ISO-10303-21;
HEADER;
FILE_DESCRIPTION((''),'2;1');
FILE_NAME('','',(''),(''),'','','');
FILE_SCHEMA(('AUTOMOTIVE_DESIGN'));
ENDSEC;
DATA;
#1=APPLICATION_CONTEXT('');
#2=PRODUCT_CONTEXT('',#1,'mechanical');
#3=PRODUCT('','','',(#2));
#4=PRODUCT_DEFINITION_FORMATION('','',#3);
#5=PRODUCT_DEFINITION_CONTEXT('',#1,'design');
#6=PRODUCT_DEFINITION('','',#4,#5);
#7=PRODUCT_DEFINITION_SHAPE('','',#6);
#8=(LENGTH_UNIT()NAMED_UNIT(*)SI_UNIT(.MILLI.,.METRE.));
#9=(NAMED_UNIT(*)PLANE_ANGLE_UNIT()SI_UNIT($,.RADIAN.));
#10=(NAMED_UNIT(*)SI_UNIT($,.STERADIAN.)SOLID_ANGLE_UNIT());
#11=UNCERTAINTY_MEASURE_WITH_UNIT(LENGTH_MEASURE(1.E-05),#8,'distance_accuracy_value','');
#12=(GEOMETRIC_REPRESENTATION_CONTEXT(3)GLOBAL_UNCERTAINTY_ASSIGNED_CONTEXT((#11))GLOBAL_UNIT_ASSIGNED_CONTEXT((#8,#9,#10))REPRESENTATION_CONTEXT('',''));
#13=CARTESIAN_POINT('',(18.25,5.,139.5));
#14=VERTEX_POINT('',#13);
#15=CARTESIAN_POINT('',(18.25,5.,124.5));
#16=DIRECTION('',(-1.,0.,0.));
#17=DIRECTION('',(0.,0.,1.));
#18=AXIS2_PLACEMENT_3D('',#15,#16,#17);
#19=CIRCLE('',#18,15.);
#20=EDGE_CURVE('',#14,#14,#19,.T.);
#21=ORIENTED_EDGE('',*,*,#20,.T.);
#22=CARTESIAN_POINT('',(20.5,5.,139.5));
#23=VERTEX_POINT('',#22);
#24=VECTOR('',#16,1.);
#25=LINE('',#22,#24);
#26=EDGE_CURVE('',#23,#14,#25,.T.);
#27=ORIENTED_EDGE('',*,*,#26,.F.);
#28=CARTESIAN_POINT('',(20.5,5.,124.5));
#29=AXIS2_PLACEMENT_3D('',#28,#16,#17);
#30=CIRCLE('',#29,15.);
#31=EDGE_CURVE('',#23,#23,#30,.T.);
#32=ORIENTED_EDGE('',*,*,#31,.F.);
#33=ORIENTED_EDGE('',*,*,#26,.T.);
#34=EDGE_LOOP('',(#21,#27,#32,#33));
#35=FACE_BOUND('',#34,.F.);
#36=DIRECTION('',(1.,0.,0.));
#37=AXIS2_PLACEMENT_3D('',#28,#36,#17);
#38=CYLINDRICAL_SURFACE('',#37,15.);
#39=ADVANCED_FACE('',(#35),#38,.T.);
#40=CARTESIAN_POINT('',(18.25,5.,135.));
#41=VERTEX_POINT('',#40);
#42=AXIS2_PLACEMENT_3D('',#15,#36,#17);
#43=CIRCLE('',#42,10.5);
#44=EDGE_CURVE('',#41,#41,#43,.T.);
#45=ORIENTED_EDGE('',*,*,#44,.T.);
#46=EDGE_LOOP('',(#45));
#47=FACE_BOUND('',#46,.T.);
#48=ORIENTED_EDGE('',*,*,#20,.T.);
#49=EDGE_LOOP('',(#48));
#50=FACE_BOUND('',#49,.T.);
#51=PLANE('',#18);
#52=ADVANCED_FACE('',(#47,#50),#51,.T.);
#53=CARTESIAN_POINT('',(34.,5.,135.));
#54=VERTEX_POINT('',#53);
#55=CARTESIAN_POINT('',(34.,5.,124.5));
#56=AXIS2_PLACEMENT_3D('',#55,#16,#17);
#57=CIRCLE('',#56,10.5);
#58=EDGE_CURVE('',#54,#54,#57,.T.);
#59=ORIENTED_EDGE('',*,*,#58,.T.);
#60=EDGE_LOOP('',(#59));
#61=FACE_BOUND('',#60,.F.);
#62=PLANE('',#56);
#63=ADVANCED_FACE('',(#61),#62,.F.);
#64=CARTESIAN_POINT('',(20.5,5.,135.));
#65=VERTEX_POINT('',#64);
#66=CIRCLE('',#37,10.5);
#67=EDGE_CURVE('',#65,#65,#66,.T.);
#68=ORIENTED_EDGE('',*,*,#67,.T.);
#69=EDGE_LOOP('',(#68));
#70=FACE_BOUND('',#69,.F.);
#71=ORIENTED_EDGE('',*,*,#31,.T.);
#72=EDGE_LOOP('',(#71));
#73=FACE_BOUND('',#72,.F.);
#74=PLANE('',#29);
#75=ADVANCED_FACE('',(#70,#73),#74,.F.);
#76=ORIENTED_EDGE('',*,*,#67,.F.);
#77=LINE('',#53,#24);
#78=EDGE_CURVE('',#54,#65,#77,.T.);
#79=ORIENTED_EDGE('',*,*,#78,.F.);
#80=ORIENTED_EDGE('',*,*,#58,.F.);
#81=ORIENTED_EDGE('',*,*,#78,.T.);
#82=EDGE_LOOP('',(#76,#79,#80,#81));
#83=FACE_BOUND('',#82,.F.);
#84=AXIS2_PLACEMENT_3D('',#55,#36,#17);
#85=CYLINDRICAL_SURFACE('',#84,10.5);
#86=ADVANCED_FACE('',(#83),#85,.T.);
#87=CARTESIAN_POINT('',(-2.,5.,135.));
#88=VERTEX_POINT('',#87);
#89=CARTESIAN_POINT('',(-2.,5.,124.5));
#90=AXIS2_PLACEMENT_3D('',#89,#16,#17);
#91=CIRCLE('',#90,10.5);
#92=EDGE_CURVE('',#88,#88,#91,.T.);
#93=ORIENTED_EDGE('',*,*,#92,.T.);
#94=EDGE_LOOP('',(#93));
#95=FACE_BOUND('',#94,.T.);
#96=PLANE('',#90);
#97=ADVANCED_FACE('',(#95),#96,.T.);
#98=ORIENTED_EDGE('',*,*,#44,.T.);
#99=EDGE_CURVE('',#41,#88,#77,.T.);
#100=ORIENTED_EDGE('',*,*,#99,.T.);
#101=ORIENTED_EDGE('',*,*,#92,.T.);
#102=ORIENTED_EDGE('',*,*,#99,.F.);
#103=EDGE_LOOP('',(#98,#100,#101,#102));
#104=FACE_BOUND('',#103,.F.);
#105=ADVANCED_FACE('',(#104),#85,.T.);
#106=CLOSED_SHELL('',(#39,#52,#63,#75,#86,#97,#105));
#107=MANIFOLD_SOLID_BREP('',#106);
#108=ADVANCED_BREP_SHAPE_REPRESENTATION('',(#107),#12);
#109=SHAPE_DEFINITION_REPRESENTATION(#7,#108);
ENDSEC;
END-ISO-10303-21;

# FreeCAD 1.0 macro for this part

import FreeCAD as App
import Part
import Sketcher

doc = App.newDocument("Part")
body = doc.addObject("PartDesign::Body", "Body")

sketch1 = doc.addObject("Sketcher::SketchObject", "Sketch")
body.addObject(sketch1)
sketch1.AttachmentSupport = (doc.XY_Plane, [""])
sketch1.MapMode = "FlatFace"
sketch1.AttachmentOffset = App.Placement(App.Vector(0, 0, 13.5), App.Rotation())
sketch1.addGeometry(Part.Circle(App.Vector(0, 0, 0), App.Vector(0, 0, 1), 15), False)
sketch1.addConstraint(Sketcher.Constraint("Coincident", 0, 3, -1, 1))
sketch1.addConstraint(Sketcher.Constraint("Diameter", 0, 30.0))
pad1 = doc.addObject("PartDesign::Pad", "Pad")
body.addObject(pad1)
pad1.Profile = sketch1
pad1.Length = 2.25
body2 = doc.addObject("PartDesign::Body", "Body001")

sketch2 = doc.addObject("Sketcher::SketchObject", "Sketch001")
body2.addObject(sketch2)
sketch2.AttachmentSupport = (doc.getObject("XY_Plane001"), [""])
sketch2.MapMode = "FlatFace"
sketch2.addGeometry(Part.Circle(App.Vector(0, 0, 0), App.Vector(0, 0, 1), 10), False)
sketch2.addConstraint(Sketcher.Constraint("Coincident", 0, 3, -1, 1))
sketch2.addConstraint(Sketcher.Constraint("Diameter", 0, 21.0))
pad2 = doc.addObject("PartDesign::Pad", "Pad001")
body2.addObject(pad2)
pad2.Profile = sketch2
pad2.Length = 36
doc.recompute()

boolean = doc.addObject("PartDesign::Boolean", "Boolean")
body2.addObject(boolean)
boolean.Type = "Fuse"
boolean.addObjects([body])
body3 = doc.addObject("PartDesign::Body", "Body002")
doc.recompute()

body2.Placement = App.Placement(App.Vector(34, 5, 124.5), App.Rotation(App.Vector(0, -1, 0), 90))
boolean2 = doc.addObject("PartDesign::Boolean", "Boolean001")
body3.addObject(boolean2)
boolean2.Type = "Fuse"
boolean2.addObjects([body2])

doc.recompute()
